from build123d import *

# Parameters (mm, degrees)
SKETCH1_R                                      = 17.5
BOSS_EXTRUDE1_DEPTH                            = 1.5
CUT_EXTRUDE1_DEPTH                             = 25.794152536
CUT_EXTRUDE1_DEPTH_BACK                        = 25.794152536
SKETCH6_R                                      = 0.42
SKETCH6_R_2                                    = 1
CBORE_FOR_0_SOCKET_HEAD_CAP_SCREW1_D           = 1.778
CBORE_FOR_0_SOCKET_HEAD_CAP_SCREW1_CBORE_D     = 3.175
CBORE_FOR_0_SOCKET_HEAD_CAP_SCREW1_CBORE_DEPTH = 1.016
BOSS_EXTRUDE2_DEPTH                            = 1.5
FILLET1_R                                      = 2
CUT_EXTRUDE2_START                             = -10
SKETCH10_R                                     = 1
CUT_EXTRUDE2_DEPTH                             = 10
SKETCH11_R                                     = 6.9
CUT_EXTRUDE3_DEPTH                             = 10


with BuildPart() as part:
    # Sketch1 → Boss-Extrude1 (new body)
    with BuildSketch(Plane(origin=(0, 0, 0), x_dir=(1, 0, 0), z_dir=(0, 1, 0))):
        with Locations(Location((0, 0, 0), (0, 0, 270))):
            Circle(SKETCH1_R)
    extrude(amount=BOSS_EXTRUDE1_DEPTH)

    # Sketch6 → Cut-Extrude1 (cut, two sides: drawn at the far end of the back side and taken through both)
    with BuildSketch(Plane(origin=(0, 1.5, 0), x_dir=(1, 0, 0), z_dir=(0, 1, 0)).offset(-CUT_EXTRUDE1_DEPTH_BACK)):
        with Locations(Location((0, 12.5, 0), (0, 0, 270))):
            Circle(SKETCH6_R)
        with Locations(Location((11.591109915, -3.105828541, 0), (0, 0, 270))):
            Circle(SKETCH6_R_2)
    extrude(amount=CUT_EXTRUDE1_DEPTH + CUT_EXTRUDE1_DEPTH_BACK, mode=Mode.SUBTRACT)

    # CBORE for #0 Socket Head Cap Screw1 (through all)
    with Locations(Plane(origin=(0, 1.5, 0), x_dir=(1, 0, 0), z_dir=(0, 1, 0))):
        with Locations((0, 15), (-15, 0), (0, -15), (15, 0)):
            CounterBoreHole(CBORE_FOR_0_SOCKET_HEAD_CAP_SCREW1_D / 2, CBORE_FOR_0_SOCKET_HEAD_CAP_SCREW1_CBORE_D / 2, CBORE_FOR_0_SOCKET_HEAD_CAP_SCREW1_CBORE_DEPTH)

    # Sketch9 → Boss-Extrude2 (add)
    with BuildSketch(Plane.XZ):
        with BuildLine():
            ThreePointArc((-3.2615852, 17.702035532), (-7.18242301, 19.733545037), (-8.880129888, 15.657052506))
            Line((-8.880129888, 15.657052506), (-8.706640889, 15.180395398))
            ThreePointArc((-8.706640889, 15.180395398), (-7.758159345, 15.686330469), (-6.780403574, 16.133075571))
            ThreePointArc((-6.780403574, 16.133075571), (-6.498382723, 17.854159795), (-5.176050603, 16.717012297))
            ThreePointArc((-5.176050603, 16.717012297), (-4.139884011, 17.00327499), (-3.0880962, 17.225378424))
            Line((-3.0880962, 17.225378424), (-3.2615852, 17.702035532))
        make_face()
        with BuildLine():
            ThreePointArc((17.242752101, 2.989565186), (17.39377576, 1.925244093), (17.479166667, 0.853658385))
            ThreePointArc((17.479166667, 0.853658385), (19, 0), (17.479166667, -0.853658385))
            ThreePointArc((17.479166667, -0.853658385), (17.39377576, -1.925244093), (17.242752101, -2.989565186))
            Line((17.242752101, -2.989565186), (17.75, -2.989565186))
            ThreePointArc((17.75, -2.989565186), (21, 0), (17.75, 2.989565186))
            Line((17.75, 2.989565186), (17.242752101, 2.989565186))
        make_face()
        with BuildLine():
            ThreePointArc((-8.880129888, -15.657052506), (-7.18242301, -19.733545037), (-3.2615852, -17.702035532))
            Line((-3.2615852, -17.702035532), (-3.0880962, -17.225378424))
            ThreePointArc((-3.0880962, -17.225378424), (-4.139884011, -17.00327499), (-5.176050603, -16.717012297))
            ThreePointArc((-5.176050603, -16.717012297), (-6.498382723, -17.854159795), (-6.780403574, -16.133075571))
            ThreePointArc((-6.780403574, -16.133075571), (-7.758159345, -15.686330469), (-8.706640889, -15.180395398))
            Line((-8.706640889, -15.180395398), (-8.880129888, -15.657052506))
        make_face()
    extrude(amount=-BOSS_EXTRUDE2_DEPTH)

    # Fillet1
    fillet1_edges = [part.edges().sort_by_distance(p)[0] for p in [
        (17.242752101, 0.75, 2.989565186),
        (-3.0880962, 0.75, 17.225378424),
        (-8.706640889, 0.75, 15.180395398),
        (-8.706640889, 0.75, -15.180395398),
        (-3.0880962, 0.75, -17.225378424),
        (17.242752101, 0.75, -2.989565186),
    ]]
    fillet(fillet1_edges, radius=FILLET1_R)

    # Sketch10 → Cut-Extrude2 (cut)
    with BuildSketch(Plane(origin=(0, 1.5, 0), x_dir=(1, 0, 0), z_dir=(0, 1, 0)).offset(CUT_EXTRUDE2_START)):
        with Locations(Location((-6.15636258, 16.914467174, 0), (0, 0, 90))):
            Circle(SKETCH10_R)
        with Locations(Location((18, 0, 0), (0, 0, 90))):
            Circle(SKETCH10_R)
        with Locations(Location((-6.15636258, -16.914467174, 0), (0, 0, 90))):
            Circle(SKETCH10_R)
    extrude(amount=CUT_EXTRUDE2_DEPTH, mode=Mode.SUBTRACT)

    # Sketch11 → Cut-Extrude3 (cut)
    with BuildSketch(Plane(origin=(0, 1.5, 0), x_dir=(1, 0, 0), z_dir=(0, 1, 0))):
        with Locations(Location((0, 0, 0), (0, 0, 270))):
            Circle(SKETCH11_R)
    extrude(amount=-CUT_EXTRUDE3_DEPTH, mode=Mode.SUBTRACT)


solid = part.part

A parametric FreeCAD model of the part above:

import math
import FreeCAD as App
import Part
import Sketcher

V = App.Vector
Q = App.Units.Quantity


def edges_at(feature, points):
    """Names of the edges that pass closest to the given points."""
    edges = feature.Shape.Edges
    near = lambda p: min(range(len(edges)), key=lambda i: edges[i].distToShape(Part.Vertex(*p))[0])
    return sorted({f"Edge{near(p) + 1}" for p in points})

doc = App.newDocument("Part")
body = doc.addObject("PartDesign::Body", "Body")

sketch1 = doc.addObject("Sketcher::SketchObject", "Sketch")
body.addObject(sketch1)
sketch1.AttachmentSupport = (doc.XZ_Plane, [""])
sketch1.MapMode = "FlatFace"
sketch1.addGeometry(Part.Circle(V(0, 0, 0), V(0, 0, 1), 17.5), False)
sketch1.addConstraint([
    Sketcher.Constraint("Coincident", 0, 3, -1, 1),
    Sketcher.Constraint("Diameter", 0, 35.0),
])
pad1 = doc.addObject("PartDesign::Pad", "Pad")
body.addObject(pad1)
pad1.Profile = sketch1
pad1.Length = 1.5
pad1.Reversed = True

sketch2 = doc.addObject("Sketcher::SketchObject", "Sketch001")
body.addObject(sketch2)
sketch2.AttachmentSupport = (doc.XZ_Plane, [""])
sketch2.MapMode = "FlatFace"
sketch2.AttachmentOffset = App.Placement(V(0, 0, -1.5), App.Rotation())
sketch2.addGeometry([
    Part.Circle(V(0, -12.5, 0), V(0, 0, 1), 0.42),
    Part.Circle(V(11.59111, 3.105829, 0), V(0, 0, 1), 1),
], False)
sketch2.addConstraint([
    Sketcher.Constraint("PointOnObject", 0, 3, -2),
    Sketcher.Constraint("Diameter", 1, 2.0),
    Sketcher.Constraint("Diameter", 0, 0.84),
    Sketcher.Constraint("DistanceY", 0, 3, -1, 1, 12.5),
    Sketcher.Constraint("DistanceX", -1, 1, 1, 3, 11.59111),
    Sketcher.Constraint("DistanceY", -1, 1, 1, 3, 3.105829),
])
pocket1 = doc.addObject("PartDesign::Pocket", "Pocket")
body.addObject(pocket1)
pocket1.Profile = sketch2
pocket1.Type = "ThroughAll"
pocket1.Midplane = True

sketch3 = doc.addObject("Sketcher::SketchObject", "Sketch002")
body.addObject(sketch3)
sketch3.AttachmentSupport = (doc.XZ_Plane, [""])
sketch3.MapMode = "FlatFace"
sketch3.AttachmentOffset = App.Placement(V(0, 0, -1.5), App.Rotation())
sketch3.addGeometry([
    Part.Circle(V(0, -15, 0), V(0, 0, 1), 0.889),
    Part.Circle(V(-15, 0, 0), V(0, 0, 1), 0.889),
    Part.Circle(V(0, 15, 0), V(0, 0, 1), 0.889),
    Part.Circle(V(15, 0, 0), V(0, 0, 1), 0.889),
], False)
sketch3.addConstraint([
    Sketcher.Constraint("Equal", 0, 1),
    Sketcher.Constraint("Equal", 1, 2),
    Sketcher.Constraint("Equal", 2, 3),
    Sketcher.Constraint("Symmetric", 0, 3, 2, 3, -1, 1),
    Sketcher.Constraint("Symmetric", 1, 3, 3, 3, -1, 1),
    Sketcher.Constraint("PointOnObject", 0, 3, -2),
    Sketcher.Constraint("PointOnObject", 1, 3, -1),
    Sketcher.Constraint("Diameter", 0, 1.778),
    Sketcher.Constraint("DistanceY", 0, 3, -1, 1, 15.0),
    Sketcher.Constraint("DistanceX", 1, 3, -1, 1, 15.0),
])
doc.recompute()
hole = doc.addObject("PartDesign::Hole", "Hole")
body.addObject(hole)
hole.Profile = sketch3
hole.ThreadType = "None"
hole.Diameter = 1.778
hole.DepthType = "ThroughAll"
hole.HoleCutType = "Counterbore"
hole.HoleCutDiameter = 3.175
hole.HoleCutDepth = 1.016
hole.Reversed = True

sketch4 = doc.addObject("Sketcher::SketchObject", "Sketch003")
body.addObject(sketch4)
sketch4.AttachmentSupport = (doc.XZ_Plane, [""])
sketch4.MapMode = "FlatFace"
sketch4.addGeometry([
    Part.ArcOfCircle(Part.Circle(V(-6.156363, 16.914467, 0), V(0, 0, 1), 3), math.radians(15.219808), math.radians(204.780192)),
    Part.LineSegment(V(-8.88013, 15.657053, 0), V(-8.706641, 15.180395, 0)),
    Part.ArcOfCircle(Part.Circle(V(0, 0, 0), V(0, 0, 1), 17.5), math.radians(112.796025), math.radians(119.836214)),
    Part.ArcOfCircle(Part.Circle(V(-6.156363, 16.914467, 0), V(0, 0, 1), 1), math.radians(-11.388166), math.radians(231.388166)),
    Part.ArcOfCircle(Part.Circle(V(0, 0, 0), V(0, 0, 1), 17.5), math.radians(100.163786), math.radians(107.203975)),
    Part.LineSegment(V(-3.088096, 17.225378, 0), V(-3.261585, 17.702036, 0)),
    Part.ArcOfCircle(Part.Circle(V(0, 0, 0), V(0, 0, 1), 17.5), math.radians(2.796025), math.radians(9.836214)),
    Part.ArcOfCircle(Part.Circle(V(18, 0, 0), V(0, 0, 1), 1), math.radians(-121.388166), math.radians(121.388166)),
    Part.ArcOfCircle(Part.Circle(V(0, 0, 0), V(0, 0, 1), 17.5), math.radians(-9.836214), math.radians(-2.796025)),
    Part.LineSegment(V(17.242752, -2.989565, 0), V(17.75, -2.989565, 0)),
    Part.ArcOfCircle(Part.Circle(V(18, 0, 0), V(0, 0, 1), 3), math.radians(-94.780192), math.radians(94.780192)),
    Part.LineSegment(V(17.75, 2.989565, 0), V(17.242752, 2.989565, 0)),
    Part.ArcOfCircle(Part.Circle(V(-6.156363, -16.914467, 0), V(0, 0, 1), 3), math.radians(155.219808), math.radians(344.780192)),
    Part.LineSegment(V(-3.261585, -17.702036, 0), V(-3.088096, -17.225378, 0)),
    Part.ArcOfCircle(Part.Circle(V(0, 0, 0), V(0, 0, 1), 17.5), math.radians(-107.203975), math.radians(-100.163786)),
    Part.ArcOfCircle(Part.Circle(V(-6.156363, -16.914467, 0), V(0, 0, 1), 1), math.radians(128.611834), math.radians(371.388166)),
    Part.ArcOfCircle(Part.Circle(V(0, 0, 0), V(0, 0, 1), 17.5), math.radians(-119.836214), math.radians(-112.796025)),
    Part.LineSegment(V(-8.706641, -15.180395, 0), V(-8.88013, -15.657053, 0)),
], False)
sketch4.addConstraint([
    Sketcher.Constraint("Coincident", 0, 2, 1, 1),
    Sketcher.Constraint("Coincident", 1, 2, 2, 2),
    Sketcher.Constraint("Coincident", 2, 1, 3, 2),
    Sketcher.Constraint("Coincident", 3, 1, 4, 2),
    Sketcher.Constraint("Coincident", 4, 1, 5, 1),
    Sketcher.Constraint("Coincident", 5, 2, 0, 1),
    Sketcher.Constraint("Coincident", 6, 1, 7, 2),
    Sketcher.Constraint("Coincident", 7, 1, 8, 2),
    Sketcher.Constraint("Coincident", 8, 1, 9, 1),
    Sketcher.Constraint("Coincident", 9, 2, 10, 1),
    Sketcher.Constraint("Coincident", 10, 2, 11, 1),
    Sketcher.Constraint("Coincident", 11, 2, 6, 2),
    Sketcher.Constraint("Coincident", 12, 2, 13, 1),
    Sketcher.Constraint("Coincident", 13, 2, 14, 2),
    Sketcher.Constraint("Coincident", 14, 1, 15, 2),
    Sketcher.Constraint("Coincident", 15, 1, 16, 2),
    Sketcher.Constraint("Coincident", 16, 1, 17, 1),
    Sketcher.Constraint("Coincident", 17, 2, 12, 1),
    Sketcher.Constraint("Horizontal", 9),
    Sketcher.Constraint("Horizontal", 11),
    Sketcher.Constraint("Coincident", 2, 3, -1, 1),
    Sketcher.Constraint("Coincident", 4, 3, -1, 1),
    Sketcher.Constraint("Coincident", 6, 3, -1, 1),
    Sketcher.Constraint("Coincident", 8, 3, -1, 1),
    Sketcher.Constraint("Coincident", 14, 3, -1, 1),
    Sketcher.Constraint("Coincident", 16, 3, -1, 1),
    Sketcher.Constraint("Coincident", 3, 3, 0, 3),
    Sketcher.Constraint("Coincident", 10, 3, 7, 3),
    Sketcher.Constraint("Coincident", 15, 3, 12, 3),
    Sketcher.Constraint("Equal", 2, 4),
    Sketcher.Constraint("Equal", 4, 6),
    Sketcher.Constraint("Equal", 3, 7),
    Sketcher.Constraint("Equal", 6, 8),
    Sketcher.Constraint("Equal", 0, 10),
    Sketcher.Constraint("Equal", 10, 12),
    Sketcher.Constraint("Equal", 8, 14),
    Sketcher.Constraint("Equal", 7, 15),
    Sketcher.Constraint("Equal", 14, 16),
    Sketcher.Constraint("Symmetric", 0, 3, 12, 3, -1),
    Sketcher.Constraint("Symmetric", 9, 2, 10, 2, -1),
    Sketcher.Constraint("Parallel", 1, 5),
    Sketcher.Constraint("Parallel", 13, 17),
    Sketcher.Constraint("Vertical", 5, 2, 12, 2),
    Sketcher.Constraint("Vertical", 4, 1, 13, 2),
    Sketcher.Constraint("Vertical", 1, 2, 16, 1),
    Sketcher.Constraint("Equal", 1, 5),
    Sketcher.Constraint("Radius", 0, 3.0),
    Sketcher.Constraint("Radius", 3, 1.0),
    Sketcher.Constraint("Radius", 2, 17.5),
    Sketcher.Constraint("Angle", 1, Q("-70 deg")),
    Sketcher.Constraint("DistanceX", -1, 1, 7, 3, 18.0),
    Sketcher.Constraint("DistanceX", -1, 1, 9, 2, 17.75),
    Sketcher.Constraint("DistanceX", 0, 2, -1, 1, 8.88013),
    Sketcher.Constraint("DistanceX", 1, 2, -1, 1, 8.706641),
    Sketcher.Constraint("DistanceX", 3, 1, -1, 1, 5.176051),
])
pad2 = doc.addObject("PartDesign::Pad", "Pad001")
body.addObject(pad2)
pad2.Profile = sketch4
pad2.Length = 1.5
pad2.Reversed = True
doc.recompute()

fillet = doc.addObject("PartDesign::Fillet", "Fillet")
body.addObject(fillet)
fillet.Base = (pad2, edges_at(pad2, [
    (17.243, 0.75, 2.99),
    (-3.088, 0.75, 17.225),
    (-8.707, 0.75, 15.18),
    (-8.707, 0.75, -15.18),
    (-3.088, 0.75, -17.225),
    (17.243, 0.75, -2.99),
]))
fillet.Radius = 2

sketch5 = doc.addObject("Sketcher::SketchObject", "Sketch004")
body.addObject(sketch5)
sketch5.AttachmentSupport = (doc.XZ_Plane, [""])
sketch5.MapMode = "FlatFace"
sketch5.AttachmentOffset = App.Placement(V(0, 0, 8.5), App.Rotation())
sketch5.addGeometry([
    Part.Circle(V(-6.156363, -16.914467, 0), V(0, 0, 1), 1),
    Part.Circle(V(18, 0, 0), V(0, 0, 1), 1),
    Part.Circle(V(-6.156363, 16.914467, 0), V(0, 0, 1), 1),
], False)
sketch5.addConstraint([
    Sketcher.Constraint("Equal", 0, 1),
    Sketcher.Constraint("Equal", 1, 2),
    Sketcher.Constraint("Symmetric", 0, 3, 2, 3, -1),
    Sketcher.Constraint("PointOnObject", 1, 3, -1),
    Sketcher.Constraint("Diameter", 0, 2.0),
    Sketcher.Constraint("DistanceX", -1, 1, 1, 3, 18.0),
    Sketcher.Constraint("DistanceX", 0, 3, -1, 1, 6.156363),
    Sketcher.Constraint("DistanceY", 0, 3, -1, 1, 16.914467),
])
pocket2 = doc.addObject("PartDesign::Pocket", "Pocket001")
body.addObject(pocket2)
pocket2.Profile = sketch5
pocket2.Length = 10

sketch6 = doc.addObject("Sketcher::SketchObject", "Sketch005")
body.addObject(sketch6)
sketch6.AttachmentSupport = (doc.XZ_Plane, [""])
sketch6.MapMode = "FlatFace"
sketch6.AttachmentOffset = App.Placement(V(0, 0, -1.5), App.Rotation())
sketch6.addGeometry(Part.Circle(V(0, 0, 0), V(0, 0, 1), 6.9), False)
sketch6.addConstraint([
    Sketcher.Constraint("Coincident", 0, 3, -1, 1),
    Sketcher.Constraint("Diameter", 0, 13.8),
])
pocket3 = doc.addObject("PartDesign::Pocket", "Pocket002")
body.addObject(pocket3)
pocket3.Profile = sketch6
pocket3.Length = 10
pocket3.Reversed = True

doc.recompute()
